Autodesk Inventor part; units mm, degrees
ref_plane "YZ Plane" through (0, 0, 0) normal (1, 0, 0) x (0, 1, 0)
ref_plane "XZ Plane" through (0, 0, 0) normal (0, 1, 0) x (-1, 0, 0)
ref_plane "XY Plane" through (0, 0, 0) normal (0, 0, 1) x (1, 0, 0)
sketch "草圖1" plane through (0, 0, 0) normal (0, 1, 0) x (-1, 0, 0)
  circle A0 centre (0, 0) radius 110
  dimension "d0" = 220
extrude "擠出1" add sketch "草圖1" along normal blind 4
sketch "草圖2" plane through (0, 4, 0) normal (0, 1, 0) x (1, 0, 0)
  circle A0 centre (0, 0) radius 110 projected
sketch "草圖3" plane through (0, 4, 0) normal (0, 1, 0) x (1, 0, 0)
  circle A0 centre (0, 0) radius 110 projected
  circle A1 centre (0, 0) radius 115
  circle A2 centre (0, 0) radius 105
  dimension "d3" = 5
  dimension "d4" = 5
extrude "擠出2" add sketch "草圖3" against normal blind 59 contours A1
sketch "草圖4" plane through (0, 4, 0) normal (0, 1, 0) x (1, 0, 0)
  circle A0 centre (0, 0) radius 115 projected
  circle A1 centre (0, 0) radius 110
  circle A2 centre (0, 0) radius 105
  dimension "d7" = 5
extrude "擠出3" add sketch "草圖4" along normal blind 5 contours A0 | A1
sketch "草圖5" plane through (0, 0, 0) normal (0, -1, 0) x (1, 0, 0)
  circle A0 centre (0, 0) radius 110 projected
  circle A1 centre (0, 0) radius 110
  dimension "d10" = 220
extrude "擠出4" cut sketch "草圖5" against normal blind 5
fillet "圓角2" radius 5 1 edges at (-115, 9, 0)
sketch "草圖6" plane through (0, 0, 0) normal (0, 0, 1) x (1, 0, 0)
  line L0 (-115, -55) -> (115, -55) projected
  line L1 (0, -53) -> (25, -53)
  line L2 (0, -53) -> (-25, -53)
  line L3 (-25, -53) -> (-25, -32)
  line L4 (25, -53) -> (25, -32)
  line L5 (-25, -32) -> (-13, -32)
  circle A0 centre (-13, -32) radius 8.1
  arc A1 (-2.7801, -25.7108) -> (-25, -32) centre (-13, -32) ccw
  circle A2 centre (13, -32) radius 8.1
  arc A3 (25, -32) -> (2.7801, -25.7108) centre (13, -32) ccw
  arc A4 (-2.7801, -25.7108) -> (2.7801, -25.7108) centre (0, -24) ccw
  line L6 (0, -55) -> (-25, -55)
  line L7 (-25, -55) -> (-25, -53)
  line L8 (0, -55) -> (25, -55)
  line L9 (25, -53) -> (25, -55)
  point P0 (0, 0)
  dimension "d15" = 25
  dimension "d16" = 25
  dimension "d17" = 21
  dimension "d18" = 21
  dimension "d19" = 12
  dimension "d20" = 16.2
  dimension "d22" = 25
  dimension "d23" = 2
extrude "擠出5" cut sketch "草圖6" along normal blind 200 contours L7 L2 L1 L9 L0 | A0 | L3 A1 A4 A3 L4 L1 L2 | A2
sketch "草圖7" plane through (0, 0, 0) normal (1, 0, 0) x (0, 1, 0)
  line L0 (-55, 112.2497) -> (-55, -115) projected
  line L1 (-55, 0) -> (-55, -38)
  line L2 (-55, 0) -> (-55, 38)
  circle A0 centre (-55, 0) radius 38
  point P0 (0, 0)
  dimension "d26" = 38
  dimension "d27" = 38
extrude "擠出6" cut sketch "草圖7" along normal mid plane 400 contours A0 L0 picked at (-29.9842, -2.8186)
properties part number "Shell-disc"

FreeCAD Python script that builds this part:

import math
import FreeCAD as App
import Part
import Sketcher
from FreeCAD import Vector


def edges_at(feature, points):
    """Names of the edges that pass closest to the given points."""
    edges = feature.Shape.Edges
    near = lambda p: min(range(len(edges)), key=lambda i: edges[i].distToShape(Part.Vertex(*p))[0])
    return sorted({f"Edge{near(p) + 1}" for p in points})

doc = App.newDocument("Part")
body = doc.addObject("PartDesign::Body", "Body")

# Sketch on XZ plane
sketch1 = doc.addObject("Sketcher::SketchObject", "Sketch")
body.addObject(sketch1)
sketch1.AttachmentSupport = (doc.XZ_Plane, [""])
sketch1.MapMode = "FlatFace"
sketch1.addGeometry(Part.Circle(Vector(0, 0, 0), Vector(0, 0, 1), 110), False)
sketch1.addConstraint(Sketcher.Constraint("Coincident", 0, 3, -1, 1))
sketch1.addConstraint(Sketcher.Constraint("Diameter", 0, 220.0))
pad1 = doc.addObject("PartDesign::Pad", "Pad")
body.addObject(pad1)
pad1.Profile = sketch1
pad1.Length = 4
pad1.Reversed = True

# Sketch on XZ plane
sketch2 = doc.addObject("Sketcher::SketchObject", "Sketch001")
body.addObject(sketch2)
sketch2.AttachmentSupport = (doc.XZ_Plane, [""])
sketch2.MapMode = "FlatFace"
sketch2.AttachmentOffset = App.Placement(Vector(0, 0, -4), App.Rotation())
sketch2.addGeometry(Part.Circle(Vector(0, 0, 0), Vector(0, 0, 1), 115), False)
sketch2.addGeometry(Part.Circle(Vector(0, 0, 0), Vector(0, 0, 1), 110), False)
sketch2.addConstraint(Sketcher.Constraint("Coincident", 0, 3, -1, 1))
sketch2.addConstraint(Sketcher.Constraint("Coincident", 1, 3, -1, 1))
sketch2.addConstraint(Sketcher.Constraint("Diameter", 0, 230.0))
sketch2.addConstraint(Sketcher.Constraint("Diameter", 1, 220.0))
pad2 = doc.addObject("PartDesign::Pad", "Pad001")
body.addObject(pad2)
pad2.Profile = sketch2
pad2.Length = 59

# Sketch on XZ plane
sketch3 = doc.addObject("Sketcher::SketchObject", "Sketch002")
body.addObject(sketch3)
sketch3.AttachmentSupport = (doc.XZ_Plane, [""])
sketch3.MapMode = "FlatFace"
sketch3.AttachmentOffset = App.Placement(Vector(0, 0, -4), App.Rotation())
sketch3.addGeometry(Part.Circle(Vector(0, 0, 0), Vector(0, 0, 1), 115), False)
sketch3.addGeometry(Part.Circle(Vector(0, 0, 0), Vector(0, 0, 1), 105), False)
sketch3.addConstraint(Sketcher.Constraint("Coincident", 0, 3, -1, 1))
sketch3.addConstraint(Sketcher.Constraint("Coincident", 1, 3, -1, 1))
sketch3.addConstraint(Sketcher.Constraint("Diameter", 0, 230.0))
sketch3.addConstraint(Sketcher.Constraint("Diameter", 1, 210.0))
pad3 = doc.addObject("PartDesign::Pad", "Pad002")
body.addObject(pad3)
pad3.Profile = sketch3
pad3.Length = 5
pad3.Reversed = True

# Sketch on XZ plane
sketch4 = doc.addObject("Sketcher::SketchObject", "Sketch003")
body.addObject(sketch4)
sketch4.AttachmentSupport = (doc.XZ_Plane, [""])
sketch4.MapMode = "FlatFace"
sketch4.addGeometry(Part.Circle(Vector(0, 0, 0), Vector(0, 0, 1), 110), False)
sketch4.addConstraint(Sketcher.Constraint("Coincident", 0, 3, -1, 1))
sketch4.addConstraint(Sketcher.Constraint("Diameter", 0, 220.0))
pocket1 = doc.addObject("PartDesign::Pocket", "Pocket")
body.addObject(pocket1)
pocket1.Profile = sketch4
pocket1.Length = 5
doc.recompute()

fillet = doc.addObject("PartDesign::Fillet", "Fillet")
body.addObject(fillet)
fillet.Base = (pocket1, edges_at(pocket1, [(-115, 9, 0)]))
fillet.Radius = 5

# Sketch on XY plane
sketch5 = doc.addObject("Sketcher::SketchObject", "Sketch004")
body.addObject(sketch5)
sketch5.AttachmentSupport = (doc.XY_Plane, [""])
sketch5.MapMode = "FlatFace"
sketch5.addGeometry(Part.LineSegment(Vector(-25, -55, 0), Vector(25, -55, 0)), False)
sketch5.addGeometry(Part.LineSegment(Vector(25, -55, 0), Vector(25, -32, 0)), False)
sketch5.addGeometry(Part.ArcOfCircle(Part.Circle(Vector(13, -32, 0), Vector(0, 0, 1), 12), math.radians(0), math.radians(148)), False)
sketch5.addGeometry(Part.ArcOfCircle(Part.Circle(Vector(0, -24, 0), Vector(0, 0, 1), 3.3), math.radians(-148), math.radians(-32)), False)
sketch5.addGeometry(Part.ArcOfCircle(Part.Circle(Vector(-13, -32, 0), Vector(0, 0, 1), 12), math.radians(32), math.radians(180)), False)
sketch5.addGeometry(Part.LineSegment(Vector(-25, -32, 0), Vector(-25, -55, 0)), False)
sketch5.addConstraint(Sketcher.Constraint("Coincident", 0, 2, 1, 1))
sketch5.addConstraint(Sketcher.Constraint("Tangent", 1, 2, 2, 1))
sketch5.addConstraint(Sketcher.Constraint("Tangent", 2, 2, 3, 2))
sketch5.addConstraint(Sketcher.Constraint("Tangent", 3, 1, 4, 1))
sketch5.addConstraint(Sketcher.Constraint("Tangent", 4, 2, 5, 1))
sketch5.addConstraint(Sketcher.Constraint("Coincident", 5, 2, 0, 1))
sketch5.addConstraint(Sketcher.Constraint("Horizontal", 0))
sketch5.addConstraint(Sketcher.Constraint("Vertical", 1))
sketch5.addConstraint(Sketcher.Constraint("Vertical", 5))
sketch5.addConstraint(Sketcher.Constraint("Equal", 2, 4))
sketch5.addConstraint(Sketcher.Constraint("Symmetric", 2, 3, 4, 3, -2))
sketch5.addConstraint(Sketcher.Constraint("Radius", 2, 12.0))
sketch5.addConstraint(Sketcher.Constraint("DistanceX", -1, 1, 0, 2, 25.0))
sketch5.addConstraint(Sketcher.Constraint("DistanceY", 1, 1, 1, 2, 23.0))
sketch5.addConstraint(Sketcher.Constraint("DistanceY", 2, 3, -1, 1, 32.0))
sketch5.addConstraint(Sketcher.Constraint("DistanceY", 3, 3, -1, 1, 24.0))
pocket2 = doc.addObject("PartDesign::Pocket", "Pocket001")
body.addObject(pocket2)
pocket2.Profile = sketch5
pocket2.Length = 200
pocket2.Reversed = True

# Sketch on YZ plane
sketch6 = doc.addObject("Sketcher::SketchObject", "Sketch005")
body.addObject(sketch6)
sketch6.AttachmentSupport = (doc.YZ_Plane, [""])
sketch6.MapMode = "FlatFace"
sketch6.addGeometry(Part.ArcOfCircle(Part.Circle(Vector(-55, 0, 0), Vector(0, 0, 1), 38), math.radians(-90), math.radians(90)), False)
sketch6.addGeometry(Part.LineSegment(Vector(-55, 38, 0), Vector(-55, -38, 0)), False)
sketch6.addConstraint(Sketcher.Constraint("Coincident", 0, 1, 1, 2))
sketch6.addConstraint(Sketcher.Constraint("Coincident", 1, 1, 0, 2))
sketch6.addConstraint(Sketcher.Constraint("Vertical", 1))
sketch6.addConstraint(Sketcher.Constraint("PointOnObject", 0, 3, -1))
sketch6.addConstraint(Sketcher.Constraint("Radius", 0, 38.0))
sketch6.addConstraint(Sketcher.Constraint("DistanceX", 0, 3, -1, 1, 55.0))
sketch6.addConstraint(Sketcher.Constraint("DistanceX", 0, 1, -1, 1, 55.0))
pocket3 = doc.addObject("PartDesign::Pocket", "Pocket002")
body.addObject(pocket3)
pocket3.Profile = sketch6
pocket3.Length = 400
pocket3.Midplane = True

doc.recompute()
